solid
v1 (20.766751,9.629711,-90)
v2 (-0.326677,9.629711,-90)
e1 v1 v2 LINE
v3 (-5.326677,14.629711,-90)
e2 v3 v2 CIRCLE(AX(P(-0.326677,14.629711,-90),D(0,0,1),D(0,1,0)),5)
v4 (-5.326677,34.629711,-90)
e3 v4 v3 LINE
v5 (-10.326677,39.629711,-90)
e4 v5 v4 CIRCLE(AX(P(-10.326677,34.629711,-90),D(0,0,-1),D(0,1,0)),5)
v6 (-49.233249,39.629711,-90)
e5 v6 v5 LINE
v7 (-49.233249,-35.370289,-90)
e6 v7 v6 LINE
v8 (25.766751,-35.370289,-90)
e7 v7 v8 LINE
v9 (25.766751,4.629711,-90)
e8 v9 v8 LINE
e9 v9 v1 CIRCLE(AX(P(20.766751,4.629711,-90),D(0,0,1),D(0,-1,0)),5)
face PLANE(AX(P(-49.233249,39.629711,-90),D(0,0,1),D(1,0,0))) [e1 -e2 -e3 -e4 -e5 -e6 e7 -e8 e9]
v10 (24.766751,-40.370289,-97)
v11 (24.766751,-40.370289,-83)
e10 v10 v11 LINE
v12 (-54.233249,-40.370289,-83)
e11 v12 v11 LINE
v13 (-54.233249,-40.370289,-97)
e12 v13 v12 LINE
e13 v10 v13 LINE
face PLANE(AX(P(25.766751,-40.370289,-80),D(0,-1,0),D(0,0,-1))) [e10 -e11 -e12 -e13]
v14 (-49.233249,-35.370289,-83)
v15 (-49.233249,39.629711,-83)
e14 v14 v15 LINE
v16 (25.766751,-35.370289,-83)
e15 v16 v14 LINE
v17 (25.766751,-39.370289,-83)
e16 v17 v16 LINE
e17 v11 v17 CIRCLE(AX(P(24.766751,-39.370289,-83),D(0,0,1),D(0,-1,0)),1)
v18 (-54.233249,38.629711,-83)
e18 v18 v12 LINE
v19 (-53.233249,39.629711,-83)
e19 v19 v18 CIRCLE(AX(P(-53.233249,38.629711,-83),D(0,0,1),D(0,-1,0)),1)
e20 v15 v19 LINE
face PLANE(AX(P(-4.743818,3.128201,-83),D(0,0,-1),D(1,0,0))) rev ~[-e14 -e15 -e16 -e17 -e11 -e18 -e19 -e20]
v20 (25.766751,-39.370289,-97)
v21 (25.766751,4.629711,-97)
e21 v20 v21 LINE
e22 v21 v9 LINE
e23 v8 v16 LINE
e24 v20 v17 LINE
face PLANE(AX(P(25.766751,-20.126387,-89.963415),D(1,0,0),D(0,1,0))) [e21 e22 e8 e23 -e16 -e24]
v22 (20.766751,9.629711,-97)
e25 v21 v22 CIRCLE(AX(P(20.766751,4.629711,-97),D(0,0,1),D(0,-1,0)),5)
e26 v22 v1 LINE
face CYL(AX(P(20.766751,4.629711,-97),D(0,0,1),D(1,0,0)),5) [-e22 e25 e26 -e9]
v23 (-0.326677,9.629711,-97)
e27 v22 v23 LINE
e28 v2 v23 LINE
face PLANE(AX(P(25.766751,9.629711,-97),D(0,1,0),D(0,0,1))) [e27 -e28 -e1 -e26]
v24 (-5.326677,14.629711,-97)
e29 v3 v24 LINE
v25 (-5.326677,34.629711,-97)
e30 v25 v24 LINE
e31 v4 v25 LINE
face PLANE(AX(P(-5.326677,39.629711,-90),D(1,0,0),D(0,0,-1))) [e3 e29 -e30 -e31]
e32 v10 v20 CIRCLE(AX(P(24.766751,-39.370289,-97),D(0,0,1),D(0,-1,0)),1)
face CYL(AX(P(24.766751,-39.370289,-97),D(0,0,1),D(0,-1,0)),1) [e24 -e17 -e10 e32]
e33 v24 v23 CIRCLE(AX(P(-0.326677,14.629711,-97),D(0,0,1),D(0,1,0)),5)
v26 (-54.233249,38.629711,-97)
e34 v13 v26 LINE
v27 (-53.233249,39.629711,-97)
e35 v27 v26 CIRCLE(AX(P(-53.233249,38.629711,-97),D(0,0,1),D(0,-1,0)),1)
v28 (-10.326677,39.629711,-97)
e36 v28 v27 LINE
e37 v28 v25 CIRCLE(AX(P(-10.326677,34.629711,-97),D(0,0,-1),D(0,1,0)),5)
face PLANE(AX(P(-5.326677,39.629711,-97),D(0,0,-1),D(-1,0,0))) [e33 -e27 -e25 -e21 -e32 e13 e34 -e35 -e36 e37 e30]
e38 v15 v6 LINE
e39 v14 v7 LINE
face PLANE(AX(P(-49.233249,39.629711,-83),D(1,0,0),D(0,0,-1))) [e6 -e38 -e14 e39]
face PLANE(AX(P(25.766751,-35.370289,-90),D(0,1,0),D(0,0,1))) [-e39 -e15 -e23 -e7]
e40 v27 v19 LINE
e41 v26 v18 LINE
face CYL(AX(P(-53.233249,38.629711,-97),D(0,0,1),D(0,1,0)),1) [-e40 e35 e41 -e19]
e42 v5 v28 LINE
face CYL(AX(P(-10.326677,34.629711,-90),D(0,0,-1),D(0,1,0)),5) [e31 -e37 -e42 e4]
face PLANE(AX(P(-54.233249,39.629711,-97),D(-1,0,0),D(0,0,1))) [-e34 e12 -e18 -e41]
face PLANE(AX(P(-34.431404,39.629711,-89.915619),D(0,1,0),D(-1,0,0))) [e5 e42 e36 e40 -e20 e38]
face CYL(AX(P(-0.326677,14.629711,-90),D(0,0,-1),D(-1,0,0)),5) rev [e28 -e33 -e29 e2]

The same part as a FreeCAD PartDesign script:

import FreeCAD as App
import Part
import Sketcher

V = App.Vector


def edges_at(feature, points):
    """Names of the edges that pass closest to the given points."""
    edges = feature.Shape.Edges
    near = lambda p: min(range(len(edges)), key=lambda i: edges[i].distToShape(Part.Vertex(*p))[0])
    return sorted({f"Edge{near(p) + 1}" for p in points})


def add_polygon(sketch, points):
    """Adds a closed chain of lines whose ends are joined by coincident constraints."""
    first, n = sketch.GeometryCount, len(points)
    for a, b in zip(points, points[1:] + points[:1]):
        sketch.addGeometry(Part.LineSegment(App.Vector(*a, 0), App.Vector(*b, 0)), False)
    for i in range(n):
        sketch.addConstraint(Sketcher.Constraint("Coincident", first + i, 2, first + (i + 1) % n, 1))

doc = App.newDocument("Part")
params = doc.addObject("Spreadsheet::Sheet", "Params")
for row, (alias, value) in enumerate([
    ("sketch1_width", "13 mm"),
    ("sketch1_width2", "80 mm"),
    ("pad1_length", "80 mm"),
    ("sketch2_width", "7 mm"),
    ("sketch2_width2", "77 mm"),
    ("pocket1_length", "75 mm"),
    ("sketch3_width", "50 mm"),
    ("sketch3_width2", "45 mm"),
    ("sketch3_width3", "15 mm"),
    ("sketch3_height", "17 mm"),
    ("sketch3_height2", "7 mm"),
    ("pad2_length", "80 mm"),
    ("sketch4_width", "20 mm"),
    ("sketch4_width2", "15 mm"),
    ("sketch4_height", "3 mm"),
    ("sketch4_height2", "7 mm"),
    ("pad3_length", "80 mm"),
    ("pocket2_length", "97.9 mm"),
    ("fillet_radius", "5 mm"),
    ("fillet2_radius", "1 mm"),
], start=1):
    params.set(f"A{row}", alias)
    params.set(f"B{row}", "=" + value)
    params.setAlias(f"B{row}", alias)

body = doc.addObject("PartDesign::Body", "Body")

sketch1 = body.newObject("Sketcher::SketchObject", "Sketch")
sketch1.AttachmentSupport = (doc.getObject("XY_Plane"), [""])
sketch1.MapMode = "FlatFace"
add_polygon(sketch1, [(-41, 40), (-54, 40), (-54, -40), (26, -40), (26, -27), (-41, -27)])
sketch1.addConstraint([
    Sketcher.Constraint("Horizontal", 0),
    Sketcher.Constraint("Vertical", 1),
    Sketcher.Constraint("Horizontal", 2),
    Sketcher.Constraint("Vertical", 3),
    Sketcher.Constraint("Horizontal", 4),
    Sketcher.Constraint("Vertical", 5),
    Sketcher.Constraint("Equal", 2, 1),
    Sketcher.Constraint("Equal", 0, 3),
    Sketcher.Constraint("DistanceX", 0, 2, 0, 1, 13.0),
    Sketcher.Constraint("DistanceX", 2, 1, 2, 2, 80.0),
    Sketcher.Constraint("DistanceX", 0, 2, -1, 1, 54.233249),
    Sketcher.Constraint("DistanceY", -1, 1, 0, 2, 39.629711),
])
sketch1.setExpression("Constraints[14]", "Params.sketch1_width")
sketch1.setExpression("Constraints[15]", "Params.sketch1_width2")
pad1 = body.newObject("PartDesign::Pad", "Pad")
pad1.Profile = sketch1
pad1.setExpression("Length", "Params.pad1_length")
pad1.Reversed = True

sketch2 = body.newObject("Sketcher::SketchObject", "Sketch001")
sketch2.AttachmentSupport = (doc.getObject("XY_Plane"), [""])
sketch2.MapMode = "FlatFace"
add_polygon(sketch2, [(-44, 40), (-51, 40), (-51, -37), (26, -37), (26, -30), (-44, -30)])
sketch2.addConstraint([
    Sketcher.Constraint("Horizontal", 0),
    Sketcher.Constraint("Vertical", 1),
    Sketcher.Constraint("Horizontal", 2),
    Sketcher.Constraint("Vertical", 3),
    Sketcher.Constraint("Horizontal", 4),
    Sketcher.Constraint("Vertical", 5),
    Sketcher.Constraint("Equal", 2, 1),
    Sketcher.Constraint("Equal", 0, 3),
    Sketcher.Constraint("DistanceX", 0, 2, 0, 1, 7.0),
    Sketcher.Constraint("DistanceX", 2, 1, 2, 2, 77.0),
    Sketcher.Constraint("DistanceX", 0, 2, -1, 1, 51.233249),
    Sketcher.Constraint("DistanceY", -1, 1, 0, 2, 39.629711),
])
sketch2.setExpression("Constraints[14]", "Params.sketch2_width")
sketch2.setExpression("Constraints[15]", "Params.sketch2_width2")
pocket1 = body.newObject("PartDesign::Pocket", "Pocket")
pocket1.Profile = sketch2
pocket1.setExpression("Length", "Params.pocket1_length")

sketch3 = body.newObject("Sketcher::SketchObject", "Sketch002")
sketch3.AttachmentSupport = (doc.getObject("YZ_Plane"), [""])
sketch3.MapMode = "FlatFace"
sketch3.AttachmentOffset = App.Placement(V(0, 0, 25.766751), App.Rotation())
add_polygon(sketch3, [(-40.4, -80), (-40.4, -97), (9.6, -97), (9.6, -90), (-35.4, -90), (-35.4, -83), (-20.4, -83), (-20.4, -80)])
sketch3.addConstraint([
    Sketcher.Constraint("Vertical", 0),
    Sketcher.Constraint("Horizontal", 1),
    Sketcher.Constraint("Vertical", 2),
    Sketcher.Constraint("Horizontal", 3),
    Sketcher.Constraint("Vertical", 4),
    Sketcher.Constraint("Horizontal", 5),
    Sketcher.Constraint("Vertical", 6),
    Sketcher.Constraint("Horizontal", 7),
    Sketcher.Constraint("Equal", 2, 4),
    Sketcher.Constraint("DistanceX", 1, 1, 1, 2, 50.0),
    Sketcher.Constraint("DistanceX", 3, 2, 3, 1, 45.0),
    Sketcher.Constraint("DistanceX", 5, 1, 5, 2, 15.0),
    Sketcher.Constraint("DistanceY", 0, 2, 0, 1, 17.0),
    Sketcher.Constraint("DistanceY", 2, 1, 2, 2, 7.0),
    Sketcher.Constraint("DistanceY", 0, 2, -1, 1, 97.0),
    Sketcher.Constraint("DistanceX", 0, 2, -1, 1, 40.370289),
])
sketch3.setExpression("Constraints[17]", "Params.sketch3_width")
sketch3.setExpression("Constraints[18]", "Params.sketch3_width2")
sketch3.setExpression("Constraints[19]", "Params.sketch3_width3")
sketch3.setExpression("Constraints[20]", "Params.sketch3_height")
sketch3.setExpression("Constraints[21]", "Params.sketch3_height2")
pad2 = body.newObject("PartDesign::Pad", "Pad001")
pad2.Profile = sketch3
pad2.setExpression("Length", "Params.pad2_length")
pad2.Reversed = True

sketch4 = body.newObject("Sketcher::SketchObject", "Sketch003")
sketch4.AttachmentSupport = (doc.getObject("XZ_Plane"), [""])
sketch4.MapMode = "FlatFace"
sketch4.AttachmentOffset = App.Placement(V(0, 0, -39.629711), App.Rotation())
add_polygon(sketch4, [(-54.2, -80), (-34.2, -80), (-34.2, -83), (-49.2, -83), (-49.2, -90), (-5.3, -90), (-5.3, -97), (-54.2, -97)])
sketch4.addConstraint([
    Sketcher.Constraint("Horizontal", 0),
    Sketcher.Constraint("Vertical", 1),
    Sketcher.Constraint("Horizontal", 2),
    Sketcher.Constraint("Vertical", 3),
    Sketcher.Constraint("Horizontal", 4),
    Sketcher.Constraint("Vertical", 5),
    Sketcher.Constraint("Horizontal", 6),
    Sketcher.Constraint("Vertical", 7),
    Sketcher.Constraint("Equal", 3, 5),
    Sketcher.Constraint("DistanceX", 0, 1, 0, 2, 20.0),
    Sketcher.Constraint("DistanceX", 2, 2, 2, 1, 15.0),
    Sketcher.Constraint("DistanceY", 1, 2, 1, 1, 3.0),
    Sketcher.Constraint("DistanceY", 3, 2, 3, 1, 7.0),
    Sketcher.Constraint("DistanceY", 0, 2, -1, 1, 80.0),
    Sketcher.Constraint("DistanceX", 4, 1, 4, 2, 43.906572),
    Sketcher.Constraint("DistanceX", 0, 2, -1, 1, 34.233249),
])
sketch4.setExpression("Constraints[17]", "Params.sketch4_width")
sketch4.setExpression("Constraints[18]", "Params.sketch4_width2")
sketch4.setExpression("Constraints[19]", "Params.sketch4_height")
sketch4.setExpression("Constraints[20]", "Params.sketch4_height2")
pad3 = body.newObject("PartDesign::Pad", "Pad002")
pad3.Profile = sketch4
pad3.setExpression("Length", "Params.pad3_length")

sketch5 = body.newObject("Sketcher::SketchObject", "Sketch004")
sketch5.AttachmentSupport = (doc.getObject("XY_Plane"), [""])
sketch5.MapMode = "FlatFace"
sketch5.AttachmentOffset = App.Placement(V(0, 0, -83), App.Rotation())
add_polygon(sketch5, [(-62, -68), (-62, 74), (53, 74), (53, -68)])
sketch5.addConstraint([
    Sketcher.Constraint("Vertical", 0),
    Sketcher.Constraint("Horizontal", 1),
    Sketcher.Constraint("Vertical", 2),
    Sketcher.Constraint("Horizontal", 3),
    Sketcher.Constraint("DistanceX", 1, 1, 1, 2, 115.381137),
    Sketcher.Constraint("DistanceY", 0, 1, 0, 2, 141.341895),
    Sketcher.Constraint("DistanceY", -1, 1, 0, 2, 73.799148),
    Sketcher.Constraint("DistanceX", -1, 1, 1, 2, 52.94675),
])
pocket2 = body.newObject("PartDesign::Pocket", "Pocket001")
pocket2.Profile = sketch5
pocket2.setExpression("Length", "Params.pocket2_length")
pocket2.Reversed = True
doc.recompute()

fillet = body.newObject("PartDesign::Fillet", "Fillet")
fillet.Base = (pocket2, edges_at(pocket2, [(-5.327, 9.63, -93.5), (-5.327, 39.63, -93.5), (25.767, 9.63, -93.5)]))
fillet.setExpression("Radius", "Params.fillet_radius")
doc.recompute()

fillet2 = body.newObject("PartDesign::Fillet", "Fillet001")
fillet2.Base = (fillet, edges_at(fillet, [(25.767, -40.37, -90), (-54.233, 39.63, -90)]))
fillet2.setExpression("Radius", "Params.fillet2_radius")

doc.recompute()
